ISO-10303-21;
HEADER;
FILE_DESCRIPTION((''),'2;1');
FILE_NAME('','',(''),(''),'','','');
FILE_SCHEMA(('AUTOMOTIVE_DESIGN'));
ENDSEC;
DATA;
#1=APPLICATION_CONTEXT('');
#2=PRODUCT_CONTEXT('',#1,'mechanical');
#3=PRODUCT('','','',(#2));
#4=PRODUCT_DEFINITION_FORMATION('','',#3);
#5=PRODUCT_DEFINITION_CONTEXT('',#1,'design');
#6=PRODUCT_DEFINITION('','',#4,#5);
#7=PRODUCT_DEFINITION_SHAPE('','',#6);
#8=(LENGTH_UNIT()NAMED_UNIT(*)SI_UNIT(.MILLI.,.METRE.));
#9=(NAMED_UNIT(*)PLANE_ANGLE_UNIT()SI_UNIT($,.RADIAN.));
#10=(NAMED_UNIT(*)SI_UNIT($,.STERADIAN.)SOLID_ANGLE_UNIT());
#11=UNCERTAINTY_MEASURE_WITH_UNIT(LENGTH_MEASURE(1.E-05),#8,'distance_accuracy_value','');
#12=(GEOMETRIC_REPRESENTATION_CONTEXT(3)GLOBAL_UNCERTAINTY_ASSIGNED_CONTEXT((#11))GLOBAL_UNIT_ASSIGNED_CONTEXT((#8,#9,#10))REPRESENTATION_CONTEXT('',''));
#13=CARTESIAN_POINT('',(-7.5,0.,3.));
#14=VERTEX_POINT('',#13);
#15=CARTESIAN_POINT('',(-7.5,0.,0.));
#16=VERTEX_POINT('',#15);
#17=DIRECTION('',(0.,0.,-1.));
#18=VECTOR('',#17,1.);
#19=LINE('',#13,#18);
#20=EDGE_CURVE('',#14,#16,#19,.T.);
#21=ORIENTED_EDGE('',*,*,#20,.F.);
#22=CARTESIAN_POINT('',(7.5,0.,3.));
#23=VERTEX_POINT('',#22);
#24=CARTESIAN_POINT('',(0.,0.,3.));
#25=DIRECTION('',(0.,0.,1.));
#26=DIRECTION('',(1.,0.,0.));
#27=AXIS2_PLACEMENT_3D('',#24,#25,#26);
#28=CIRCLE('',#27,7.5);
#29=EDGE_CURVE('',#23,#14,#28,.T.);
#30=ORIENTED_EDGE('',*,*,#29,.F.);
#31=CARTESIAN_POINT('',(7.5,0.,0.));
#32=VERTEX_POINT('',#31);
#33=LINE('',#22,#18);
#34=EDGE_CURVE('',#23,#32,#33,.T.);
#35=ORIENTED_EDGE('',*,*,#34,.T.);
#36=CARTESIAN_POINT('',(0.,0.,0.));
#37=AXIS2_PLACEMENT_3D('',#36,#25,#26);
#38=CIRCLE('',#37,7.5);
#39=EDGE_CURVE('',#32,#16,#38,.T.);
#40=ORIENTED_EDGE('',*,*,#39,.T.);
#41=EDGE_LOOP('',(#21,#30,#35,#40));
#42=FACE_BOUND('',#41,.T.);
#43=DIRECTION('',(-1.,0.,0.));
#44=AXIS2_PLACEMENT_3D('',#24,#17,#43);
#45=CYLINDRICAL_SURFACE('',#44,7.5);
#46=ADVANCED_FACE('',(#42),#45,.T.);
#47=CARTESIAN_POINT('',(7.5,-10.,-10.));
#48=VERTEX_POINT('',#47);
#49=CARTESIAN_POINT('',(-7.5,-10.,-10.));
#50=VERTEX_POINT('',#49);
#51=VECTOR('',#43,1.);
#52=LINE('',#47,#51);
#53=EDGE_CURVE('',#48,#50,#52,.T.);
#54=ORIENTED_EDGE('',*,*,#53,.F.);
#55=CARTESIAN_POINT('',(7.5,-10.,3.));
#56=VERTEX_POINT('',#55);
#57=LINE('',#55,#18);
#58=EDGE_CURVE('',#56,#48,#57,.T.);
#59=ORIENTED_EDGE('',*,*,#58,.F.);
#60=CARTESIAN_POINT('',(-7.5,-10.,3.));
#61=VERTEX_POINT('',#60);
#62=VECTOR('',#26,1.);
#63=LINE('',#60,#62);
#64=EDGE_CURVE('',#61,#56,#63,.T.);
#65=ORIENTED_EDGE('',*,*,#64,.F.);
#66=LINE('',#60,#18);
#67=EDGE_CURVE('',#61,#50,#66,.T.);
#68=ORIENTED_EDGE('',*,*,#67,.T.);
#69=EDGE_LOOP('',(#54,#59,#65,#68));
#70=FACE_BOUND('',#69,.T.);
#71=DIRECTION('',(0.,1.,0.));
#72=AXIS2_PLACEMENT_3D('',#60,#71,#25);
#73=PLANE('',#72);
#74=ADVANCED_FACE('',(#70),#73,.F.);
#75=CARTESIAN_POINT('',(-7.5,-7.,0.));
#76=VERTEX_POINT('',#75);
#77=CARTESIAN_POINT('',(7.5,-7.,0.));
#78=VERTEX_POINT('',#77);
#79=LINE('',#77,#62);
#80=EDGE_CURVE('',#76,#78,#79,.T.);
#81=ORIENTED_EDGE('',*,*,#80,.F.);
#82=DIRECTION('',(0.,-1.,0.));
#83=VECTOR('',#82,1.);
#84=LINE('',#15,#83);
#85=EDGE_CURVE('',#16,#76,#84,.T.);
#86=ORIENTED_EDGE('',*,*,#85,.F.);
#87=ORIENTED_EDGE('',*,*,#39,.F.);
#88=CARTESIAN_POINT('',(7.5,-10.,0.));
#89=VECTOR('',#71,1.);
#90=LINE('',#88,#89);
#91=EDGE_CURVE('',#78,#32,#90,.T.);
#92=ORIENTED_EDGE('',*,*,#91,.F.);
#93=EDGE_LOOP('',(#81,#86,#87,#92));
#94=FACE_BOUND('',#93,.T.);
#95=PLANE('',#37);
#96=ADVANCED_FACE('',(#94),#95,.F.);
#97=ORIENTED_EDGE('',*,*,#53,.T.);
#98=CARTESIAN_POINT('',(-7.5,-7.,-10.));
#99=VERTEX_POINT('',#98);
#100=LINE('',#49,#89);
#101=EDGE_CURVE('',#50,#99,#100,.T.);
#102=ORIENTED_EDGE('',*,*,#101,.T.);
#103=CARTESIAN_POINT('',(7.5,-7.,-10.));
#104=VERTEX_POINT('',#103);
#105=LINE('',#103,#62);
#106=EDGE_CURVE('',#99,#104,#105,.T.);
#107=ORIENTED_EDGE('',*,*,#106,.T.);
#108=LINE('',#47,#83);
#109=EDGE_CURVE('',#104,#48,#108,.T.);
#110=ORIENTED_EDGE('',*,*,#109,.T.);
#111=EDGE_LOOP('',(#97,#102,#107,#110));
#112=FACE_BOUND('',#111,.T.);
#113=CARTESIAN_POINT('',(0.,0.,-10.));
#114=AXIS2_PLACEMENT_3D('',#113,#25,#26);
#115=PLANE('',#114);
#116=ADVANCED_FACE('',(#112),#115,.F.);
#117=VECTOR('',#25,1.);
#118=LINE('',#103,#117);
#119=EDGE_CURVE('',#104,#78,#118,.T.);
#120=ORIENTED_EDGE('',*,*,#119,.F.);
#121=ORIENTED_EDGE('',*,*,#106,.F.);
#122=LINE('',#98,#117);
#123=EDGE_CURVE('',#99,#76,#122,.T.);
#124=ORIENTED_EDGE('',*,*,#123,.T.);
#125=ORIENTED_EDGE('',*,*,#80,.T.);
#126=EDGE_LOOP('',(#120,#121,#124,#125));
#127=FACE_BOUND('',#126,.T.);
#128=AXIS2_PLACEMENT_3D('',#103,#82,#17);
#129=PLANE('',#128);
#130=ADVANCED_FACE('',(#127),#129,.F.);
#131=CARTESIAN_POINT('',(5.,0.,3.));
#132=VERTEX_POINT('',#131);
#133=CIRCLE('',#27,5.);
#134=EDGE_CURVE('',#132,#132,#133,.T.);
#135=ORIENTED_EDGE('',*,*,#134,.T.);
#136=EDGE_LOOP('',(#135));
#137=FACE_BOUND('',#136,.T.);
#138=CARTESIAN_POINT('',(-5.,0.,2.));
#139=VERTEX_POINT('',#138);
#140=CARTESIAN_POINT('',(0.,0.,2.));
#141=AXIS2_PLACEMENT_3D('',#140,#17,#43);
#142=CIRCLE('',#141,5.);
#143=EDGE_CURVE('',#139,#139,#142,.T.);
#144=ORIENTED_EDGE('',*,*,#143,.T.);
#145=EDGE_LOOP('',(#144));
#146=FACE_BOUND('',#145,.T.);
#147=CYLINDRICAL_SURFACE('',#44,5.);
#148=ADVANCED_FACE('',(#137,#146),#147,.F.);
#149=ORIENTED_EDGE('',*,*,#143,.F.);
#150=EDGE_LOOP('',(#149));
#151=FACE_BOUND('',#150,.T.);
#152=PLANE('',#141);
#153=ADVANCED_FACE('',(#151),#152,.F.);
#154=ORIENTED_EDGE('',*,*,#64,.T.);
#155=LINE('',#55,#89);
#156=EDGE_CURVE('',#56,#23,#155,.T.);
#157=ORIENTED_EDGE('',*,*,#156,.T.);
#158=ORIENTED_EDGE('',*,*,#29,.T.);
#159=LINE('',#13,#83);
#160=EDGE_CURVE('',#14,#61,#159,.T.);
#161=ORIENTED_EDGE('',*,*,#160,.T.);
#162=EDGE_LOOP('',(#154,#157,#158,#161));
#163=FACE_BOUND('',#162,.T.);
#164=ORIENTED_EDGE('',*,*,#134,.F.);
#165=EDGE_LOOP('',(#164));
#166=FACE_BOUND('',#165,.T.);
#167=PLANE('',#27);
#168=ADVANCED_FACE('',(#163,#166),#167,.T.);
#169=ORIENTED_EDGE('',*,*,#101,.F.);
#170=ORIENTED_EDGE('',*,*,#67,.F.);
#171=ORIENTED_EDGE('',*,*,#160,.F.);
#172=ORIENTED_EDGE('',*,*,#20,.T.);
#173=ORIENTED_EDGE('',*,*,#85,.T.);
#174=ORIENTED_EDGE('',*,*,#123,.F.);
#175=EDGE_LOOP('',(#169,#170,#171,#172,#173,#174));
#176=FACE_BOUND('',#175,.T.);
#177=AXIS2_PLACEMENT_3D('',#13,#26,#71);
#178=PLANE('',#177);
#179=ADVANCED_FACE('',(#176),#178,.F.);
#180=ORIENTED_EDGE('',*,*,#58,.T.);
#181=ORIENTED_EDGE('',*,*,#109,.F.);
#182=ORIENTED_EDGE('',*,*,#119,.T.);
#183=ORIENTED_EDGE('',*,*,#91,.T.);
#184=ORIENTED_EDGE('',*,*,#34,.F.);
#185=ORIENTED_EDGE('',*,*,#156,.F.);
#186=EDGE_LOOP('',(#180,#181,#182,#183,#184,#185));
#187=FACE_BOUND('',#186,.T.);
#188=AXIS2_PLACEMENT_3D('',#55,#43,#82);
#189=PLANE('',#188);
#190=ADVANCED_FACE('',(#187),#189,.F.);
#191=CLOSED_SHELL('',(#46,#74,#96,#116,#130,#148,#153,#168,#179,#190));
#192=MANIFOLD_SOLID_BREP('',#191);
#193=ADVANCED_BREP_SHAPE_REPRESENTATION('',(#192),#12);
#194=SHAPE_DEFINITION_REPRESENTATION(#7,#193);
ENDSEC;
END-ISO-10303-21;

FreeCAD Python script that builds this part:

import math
import FreeCAD as App
import Part
import Sketcher

V = App.Vector


def add_polygon(sketch, points):
    """Adds a closed chain of lines whose ends are joined by coincident constraints."""
    first, n = sketch.GeometryCount, len(points)
    for a, b in zip(points, points[1:] + points[:1]):
        sketch.addGeometry(Part.LineSegment(App.Vector(*a, 0), App.Vector(*b, 0)), False)
    for i in range(n):
        sketch.addConstraint(Sketcher.Constraint("Coincident", first + i, 2, first + (i + 1) % n, 1))

doc = App.newDocument("Part")
body = doc.addObject("PartDesign::Body", "Body")

sketch1 = body.newObject("Sketcher::SketchObject", "Sketch")
sketch1.AttachmentSupport = (doc.getObject("XY_Plane"), [""])
sketch1.MapMode = "FlatFace"
sketch1.addGeometry([
    Part.LineSegment(V(-8, 0, 0), V(-8, -10, 0)),
    Part.LineSegment(V(-8, -10, 0), V(8, -10, 0)),
    Part.LineSegment(V(8, -10, 0), V(8, 0, 0)),
    Part.ArcOfCircle(Part.Circle(V(0, 0, 0), V(0, 0, 1), 8), math.radians(0), math.radians(180)),
    Part.Circle(V(0, 0, 0), V(0, 0, 1), 5),
], False)
sketch1.addConstraint([
    Sketcher.Constraint("Coincident", 0, 2, 1, 1),
    Sketcher.Constraint("Coincident", 1, 2, 2, 1),
    Sketcher.Constraint("Tangent", 2, 2, 3, 1),
    Sketcher.Constraint("Tangent", 3, 2, 0, 1),
    Sketcher.Constraint("Vertical", 0),
    Sketcher.Constraint("Horizontal", 1),
    Sketcher.Constraint("Vertical", 2),
    Sketcher.Constraint("Coincident", 3, 3, -1, 1),
    Sketcher.Constraint("Coincident", 4, 3, -1, 1),
    Sketcher.Constraint("Diameter", 4, 10.0),
    Sketcher.Constraint("Radius", 3, 7.5),
    Sketcher.Constraint("DistanceY", 0, 2, 0, 1, 10.0),
])
pad1 = body.newObject("PartDesign::Pad", "Pad")
pad1.Profile = sketch1
pad1.Length = 3

sketch2 = body.newObject("Sketcher::SketchObject", "Sketch001")
sketch2.AttachmentSupport = (doc.getObject("XY_Plane"), [""])
sketch2.MapMode = "FlatFace"
sketch2.addGeometry(Part.Circle(V(0, 0, 0), V(0, 0, 1), 5), False)
sketch2.addConstraint([
    Sketcher.Constraint("Coincident", 0, 3, -1, 1),
    Sketcher.Constraint("Diameter", 0, 10.0),
])
pad2 = body.newObject("PartDesign::Pad", "Pad001")
pad2.Profile = sketch2
pad2.Length = 2

sketch3 = body.newObject("Sketcher::SketchObject", "Sketch002")
sketch3.AttachmentSupport = (doc.getObject("XY_Plane"), [""])
sketch3.MapMode = "FlatFace"
add_polygon(sketch3, [(7.5, -7), (7.5, -10), (-7.5, -10), (-7.5, -7)])
sketch3.addConstraint([
    Sketcher.Constraint("Vertical", 0),
    Sketcher.Constraint("Horizontal", 1),
    Sketcher.Constraint("Vertical", 2),
    Sketcher.Constraint("Horizontal", 3),
    Sketcher.Constraint("DistanceX", 1, 2, 1, 1, 15.0),
    Sketcher.Constraint("DistanceY", 0, 2, 0, 1, 3.0),
    Sketcher.Constraint("DistanceY", 0, 2, -1, 1, 10.0),
    Sketcher.Constraint("DistanceX", -1, 1, 0, 2, 7.5),
])
pad3 = body.newObject("PartDesign::Pad", "Pad002")
pad3.Profile = sketch3
pad3.Length = 10
pad3.Reversed = True

doc.recompute()
